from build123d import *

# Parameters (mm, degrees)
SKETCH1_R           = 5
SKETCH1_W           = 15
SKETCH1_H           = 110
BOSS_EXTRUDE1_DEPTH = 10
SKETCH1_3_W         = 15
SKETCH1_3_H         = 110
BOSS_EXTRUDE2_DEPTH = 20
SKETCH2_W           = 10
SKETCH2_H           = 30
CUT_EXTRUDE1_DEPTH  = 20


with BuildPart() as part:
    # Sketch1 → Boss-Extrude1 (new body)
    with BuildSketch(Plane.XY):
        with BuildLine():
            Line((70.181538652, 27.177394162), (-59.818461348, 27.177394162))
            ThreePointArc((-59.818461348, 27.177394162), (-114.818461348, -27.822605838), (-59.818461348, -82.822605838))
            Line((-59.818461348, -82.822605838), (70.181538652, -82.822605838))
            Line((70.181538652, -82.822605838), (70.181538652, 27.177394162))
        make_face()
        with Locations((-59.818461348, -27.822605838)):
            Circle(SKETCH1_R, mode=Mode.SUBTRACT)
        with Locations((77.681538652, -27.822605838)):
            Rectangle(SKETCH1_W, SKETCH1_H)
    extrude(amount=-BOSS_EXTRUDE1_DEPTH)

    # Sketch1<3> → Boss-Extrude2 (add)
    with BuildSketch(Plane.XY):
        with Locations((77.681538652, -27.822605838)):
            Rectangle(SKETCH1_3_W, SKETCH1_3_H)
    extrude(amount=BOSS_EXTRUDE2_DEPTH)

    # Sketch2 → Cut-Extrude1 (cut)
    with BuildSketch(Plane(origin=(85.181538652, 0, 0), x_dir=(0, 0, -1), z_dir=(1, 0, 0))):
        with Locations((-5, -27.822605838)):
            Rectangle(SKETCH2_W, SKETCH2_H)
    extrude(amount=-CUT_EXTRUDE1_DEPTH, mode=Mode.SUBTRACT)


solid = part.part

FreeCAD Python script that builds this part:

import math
import FreeCAD as App
import Part
import Sketcher

V = App.Vector
Q = App.Units.Quantity

doc = App.newDocument("Part")
body = doc.addObject("PartDesign::Body", "Body")

sketch1 = body.newObject("Sketcher::SketchObject", "Sketch")
sketch1.AttachmentSupport = (doc.getObject("XY_Plane"), [""])
sketch1.MapMode = "FlatFace"
sketch1.addGeometry([
    Part.ArcOfCircle(Part.Circle(V(-59.818461, -27.822606, 0), V(0, 0, 1), 55), math.radians(90), math.radians(270)),
    Part.LineSegment(V(-59.818461, -82.822606, 0), V(85.181539, -82.822606, 0)),
    Part.LineSegment(V(85.181539, -82.822606, 0), V(85.181539, 27.177394, 0)),
    Part.LineSegment(V(85.181539, 27.177394, 0), V(-59.818461, 27.177394, 0)),
    Part.Circle(V(-59.818461, -27.822606, 0), V(0, 0, 1), 5),
], False)
sketch1.addConstraint([
    Sketcher.Constraint("Tangent", 0, 2, 1, 1),
    Sketcher.Constraint("Coincident", 1, 2, 2, 1),
    Sketcher.Constraint("Coincident", 2, 2, 3, 1),
    Sketcher.Constraint("Tangent", 3, 2, 0, 1),
    Sketcher.Constraint("Horizontal", 1),
    Sketcher.Constraint("Vertical", 2),
    Sketcher.Constraint("Horizontal", 3),
    Sketcher.Constraint("Coincident", 4, 3, 0, 3),
    Sketcher.Constraint("Diameter", 4, Q("10 mm")),
    Sketcher.Constraint("Radius", 0, Q("55 mm")),
    Sketcher.Constraint("DistanceX", 1, 1, 1, 2, Q("145 mm")),
    Sketcher.Constraint("DistanceX", 0, 3, -1, 1, Q("59.818461 mm")),
    Sketcher.Constraint("DistanceY", 0, 3, -1, 1, Q("27.822606 mm")),
])
pad1 = body.newObject("PartDesign::Pad", "Pad")
pad1.Profile = sketch1
pad1.Length = 10
pad1.Reversed = True

sketch2 = body.newObject("Sketcher::SketchObject", "Sketch001")
sketch2.AttachmentSupport = (doc.getObject("XY_Plane"), [""])
sketch2.MapMode = "FlatFace"
sketch2.addGeometry([
    Part.LineSegment(V(70.181539, 27.177394, 0), V(70.181539, -82.822606, 0)),
    Part.LineSegment(V(70.181539, -82.822606, 0), V(85.181539, -82.822606, 0)),
    Part.LineSegment(V(85.181539, -82.822606, 0), V(85.181539, 27.177394, 0)),
    Part.LineSegment(V(85.181539, 27.177394, 0), V(70.181539, 27.177394, 0)),
], False)
sketch2.addConstraint([
    Sketcher.Constraint("Coincident", 0, 2, 1, 1),
    Sketcher.Constraint("Coincident", 1, 2, 2, 1),
    Sketcher.Constraint("Coincident", 2, 2, 3, 1),
    Sketcher.Constraint("Coincident", 3, 2, 0, 1),
    Sketcher.Constraint("Vertical", 0),
    Sketcher.Constraint("Horizontal", 1),
    Sketcher.Constraint("Vertical", 2),
    Sketcher.Constraint("Horizontal", 3),
    Sketcher.Constraint("DistanceX", 1, 1, 1, 2, Q("15 mm")),
    Sketcher.Constraint("DistanceY", 0, 2, 0, 1, Q("110 mm")),
    Sketcher.Constraint("DistanceX", -1, 1, 0, 2, Q("70.181539 mm")),
    Sketcher.Constraint("DistanceY", 0, 2, -1, 1, Q("82.822606 mm")),
])
pad2 = body.newObject("PartDesign::Pad", "Pad001")
pad2.Profile = sketch2
pad2.Length = 20

sketch3 = body.newObject("Sketcher::SketchObject", "Sketch002")
sketch3.AttachmentSupport = (doc.getObject("YZ_Plane"), [""])
sketch3.MapMode = "FlatFace"
sketch3.AttachmentOffset = App.Placement(V(0, 0, 85.181539), App.Rotation())
sketch3.addGeometry([
    Part.LineSegment(V(-12.822606, 10, 0), V(-42.822606, 10, 0)),
    Part.LineSegment(V(-42.822606, 10, 0), V(-42.822606, 0, 0)),
    Part.LineSegment(V(-42.822606, 0, 0), V(-12.822606, 0, 0)),
    Part.LineSegment(V(-12.822606, 0, 0), V(-12.822606, 10, 0)),
], False)
sketch3.addConstraint([
    Sketcher.Constraint("Coincident", 0, 2, 1, 1),
    Sketcher.Constraint("Coincident", 1, 2, 2, 1),
    Sketcher.Constraint("Coincident", 2, 2, 3, 1),
    Sketcher.Constraint("Coincident", 3, 2, 0, 1),
    Sketcher.Constraint("Horizontal", 0),
    Sketcher.Constraint("Vertical", 1),
    Sketcher.Constraint("Horizontal", 2),
    Sketcher.Constraint("Vertical", 3),
    Sketcher.Constraint("PointOnObject", 1, 2, -1),
    Sketcher.Constraint("DistanceX", 0, 2, 0, 1, Q("30 mm")),
    Sketcher.Constraint("DistanceY", 1, 2, 1, 1, Q("10 mm")),
    Sketcher.Constraint("DistanceX", 0, 2, -1, 1, Q("42.822606 mm")),
])
pocket1 = body.newObject("PartDesign::Pocket", "Pocket")
pocket1.Profile = sketch3
pocket1.Length = 20

doc.recompute()
